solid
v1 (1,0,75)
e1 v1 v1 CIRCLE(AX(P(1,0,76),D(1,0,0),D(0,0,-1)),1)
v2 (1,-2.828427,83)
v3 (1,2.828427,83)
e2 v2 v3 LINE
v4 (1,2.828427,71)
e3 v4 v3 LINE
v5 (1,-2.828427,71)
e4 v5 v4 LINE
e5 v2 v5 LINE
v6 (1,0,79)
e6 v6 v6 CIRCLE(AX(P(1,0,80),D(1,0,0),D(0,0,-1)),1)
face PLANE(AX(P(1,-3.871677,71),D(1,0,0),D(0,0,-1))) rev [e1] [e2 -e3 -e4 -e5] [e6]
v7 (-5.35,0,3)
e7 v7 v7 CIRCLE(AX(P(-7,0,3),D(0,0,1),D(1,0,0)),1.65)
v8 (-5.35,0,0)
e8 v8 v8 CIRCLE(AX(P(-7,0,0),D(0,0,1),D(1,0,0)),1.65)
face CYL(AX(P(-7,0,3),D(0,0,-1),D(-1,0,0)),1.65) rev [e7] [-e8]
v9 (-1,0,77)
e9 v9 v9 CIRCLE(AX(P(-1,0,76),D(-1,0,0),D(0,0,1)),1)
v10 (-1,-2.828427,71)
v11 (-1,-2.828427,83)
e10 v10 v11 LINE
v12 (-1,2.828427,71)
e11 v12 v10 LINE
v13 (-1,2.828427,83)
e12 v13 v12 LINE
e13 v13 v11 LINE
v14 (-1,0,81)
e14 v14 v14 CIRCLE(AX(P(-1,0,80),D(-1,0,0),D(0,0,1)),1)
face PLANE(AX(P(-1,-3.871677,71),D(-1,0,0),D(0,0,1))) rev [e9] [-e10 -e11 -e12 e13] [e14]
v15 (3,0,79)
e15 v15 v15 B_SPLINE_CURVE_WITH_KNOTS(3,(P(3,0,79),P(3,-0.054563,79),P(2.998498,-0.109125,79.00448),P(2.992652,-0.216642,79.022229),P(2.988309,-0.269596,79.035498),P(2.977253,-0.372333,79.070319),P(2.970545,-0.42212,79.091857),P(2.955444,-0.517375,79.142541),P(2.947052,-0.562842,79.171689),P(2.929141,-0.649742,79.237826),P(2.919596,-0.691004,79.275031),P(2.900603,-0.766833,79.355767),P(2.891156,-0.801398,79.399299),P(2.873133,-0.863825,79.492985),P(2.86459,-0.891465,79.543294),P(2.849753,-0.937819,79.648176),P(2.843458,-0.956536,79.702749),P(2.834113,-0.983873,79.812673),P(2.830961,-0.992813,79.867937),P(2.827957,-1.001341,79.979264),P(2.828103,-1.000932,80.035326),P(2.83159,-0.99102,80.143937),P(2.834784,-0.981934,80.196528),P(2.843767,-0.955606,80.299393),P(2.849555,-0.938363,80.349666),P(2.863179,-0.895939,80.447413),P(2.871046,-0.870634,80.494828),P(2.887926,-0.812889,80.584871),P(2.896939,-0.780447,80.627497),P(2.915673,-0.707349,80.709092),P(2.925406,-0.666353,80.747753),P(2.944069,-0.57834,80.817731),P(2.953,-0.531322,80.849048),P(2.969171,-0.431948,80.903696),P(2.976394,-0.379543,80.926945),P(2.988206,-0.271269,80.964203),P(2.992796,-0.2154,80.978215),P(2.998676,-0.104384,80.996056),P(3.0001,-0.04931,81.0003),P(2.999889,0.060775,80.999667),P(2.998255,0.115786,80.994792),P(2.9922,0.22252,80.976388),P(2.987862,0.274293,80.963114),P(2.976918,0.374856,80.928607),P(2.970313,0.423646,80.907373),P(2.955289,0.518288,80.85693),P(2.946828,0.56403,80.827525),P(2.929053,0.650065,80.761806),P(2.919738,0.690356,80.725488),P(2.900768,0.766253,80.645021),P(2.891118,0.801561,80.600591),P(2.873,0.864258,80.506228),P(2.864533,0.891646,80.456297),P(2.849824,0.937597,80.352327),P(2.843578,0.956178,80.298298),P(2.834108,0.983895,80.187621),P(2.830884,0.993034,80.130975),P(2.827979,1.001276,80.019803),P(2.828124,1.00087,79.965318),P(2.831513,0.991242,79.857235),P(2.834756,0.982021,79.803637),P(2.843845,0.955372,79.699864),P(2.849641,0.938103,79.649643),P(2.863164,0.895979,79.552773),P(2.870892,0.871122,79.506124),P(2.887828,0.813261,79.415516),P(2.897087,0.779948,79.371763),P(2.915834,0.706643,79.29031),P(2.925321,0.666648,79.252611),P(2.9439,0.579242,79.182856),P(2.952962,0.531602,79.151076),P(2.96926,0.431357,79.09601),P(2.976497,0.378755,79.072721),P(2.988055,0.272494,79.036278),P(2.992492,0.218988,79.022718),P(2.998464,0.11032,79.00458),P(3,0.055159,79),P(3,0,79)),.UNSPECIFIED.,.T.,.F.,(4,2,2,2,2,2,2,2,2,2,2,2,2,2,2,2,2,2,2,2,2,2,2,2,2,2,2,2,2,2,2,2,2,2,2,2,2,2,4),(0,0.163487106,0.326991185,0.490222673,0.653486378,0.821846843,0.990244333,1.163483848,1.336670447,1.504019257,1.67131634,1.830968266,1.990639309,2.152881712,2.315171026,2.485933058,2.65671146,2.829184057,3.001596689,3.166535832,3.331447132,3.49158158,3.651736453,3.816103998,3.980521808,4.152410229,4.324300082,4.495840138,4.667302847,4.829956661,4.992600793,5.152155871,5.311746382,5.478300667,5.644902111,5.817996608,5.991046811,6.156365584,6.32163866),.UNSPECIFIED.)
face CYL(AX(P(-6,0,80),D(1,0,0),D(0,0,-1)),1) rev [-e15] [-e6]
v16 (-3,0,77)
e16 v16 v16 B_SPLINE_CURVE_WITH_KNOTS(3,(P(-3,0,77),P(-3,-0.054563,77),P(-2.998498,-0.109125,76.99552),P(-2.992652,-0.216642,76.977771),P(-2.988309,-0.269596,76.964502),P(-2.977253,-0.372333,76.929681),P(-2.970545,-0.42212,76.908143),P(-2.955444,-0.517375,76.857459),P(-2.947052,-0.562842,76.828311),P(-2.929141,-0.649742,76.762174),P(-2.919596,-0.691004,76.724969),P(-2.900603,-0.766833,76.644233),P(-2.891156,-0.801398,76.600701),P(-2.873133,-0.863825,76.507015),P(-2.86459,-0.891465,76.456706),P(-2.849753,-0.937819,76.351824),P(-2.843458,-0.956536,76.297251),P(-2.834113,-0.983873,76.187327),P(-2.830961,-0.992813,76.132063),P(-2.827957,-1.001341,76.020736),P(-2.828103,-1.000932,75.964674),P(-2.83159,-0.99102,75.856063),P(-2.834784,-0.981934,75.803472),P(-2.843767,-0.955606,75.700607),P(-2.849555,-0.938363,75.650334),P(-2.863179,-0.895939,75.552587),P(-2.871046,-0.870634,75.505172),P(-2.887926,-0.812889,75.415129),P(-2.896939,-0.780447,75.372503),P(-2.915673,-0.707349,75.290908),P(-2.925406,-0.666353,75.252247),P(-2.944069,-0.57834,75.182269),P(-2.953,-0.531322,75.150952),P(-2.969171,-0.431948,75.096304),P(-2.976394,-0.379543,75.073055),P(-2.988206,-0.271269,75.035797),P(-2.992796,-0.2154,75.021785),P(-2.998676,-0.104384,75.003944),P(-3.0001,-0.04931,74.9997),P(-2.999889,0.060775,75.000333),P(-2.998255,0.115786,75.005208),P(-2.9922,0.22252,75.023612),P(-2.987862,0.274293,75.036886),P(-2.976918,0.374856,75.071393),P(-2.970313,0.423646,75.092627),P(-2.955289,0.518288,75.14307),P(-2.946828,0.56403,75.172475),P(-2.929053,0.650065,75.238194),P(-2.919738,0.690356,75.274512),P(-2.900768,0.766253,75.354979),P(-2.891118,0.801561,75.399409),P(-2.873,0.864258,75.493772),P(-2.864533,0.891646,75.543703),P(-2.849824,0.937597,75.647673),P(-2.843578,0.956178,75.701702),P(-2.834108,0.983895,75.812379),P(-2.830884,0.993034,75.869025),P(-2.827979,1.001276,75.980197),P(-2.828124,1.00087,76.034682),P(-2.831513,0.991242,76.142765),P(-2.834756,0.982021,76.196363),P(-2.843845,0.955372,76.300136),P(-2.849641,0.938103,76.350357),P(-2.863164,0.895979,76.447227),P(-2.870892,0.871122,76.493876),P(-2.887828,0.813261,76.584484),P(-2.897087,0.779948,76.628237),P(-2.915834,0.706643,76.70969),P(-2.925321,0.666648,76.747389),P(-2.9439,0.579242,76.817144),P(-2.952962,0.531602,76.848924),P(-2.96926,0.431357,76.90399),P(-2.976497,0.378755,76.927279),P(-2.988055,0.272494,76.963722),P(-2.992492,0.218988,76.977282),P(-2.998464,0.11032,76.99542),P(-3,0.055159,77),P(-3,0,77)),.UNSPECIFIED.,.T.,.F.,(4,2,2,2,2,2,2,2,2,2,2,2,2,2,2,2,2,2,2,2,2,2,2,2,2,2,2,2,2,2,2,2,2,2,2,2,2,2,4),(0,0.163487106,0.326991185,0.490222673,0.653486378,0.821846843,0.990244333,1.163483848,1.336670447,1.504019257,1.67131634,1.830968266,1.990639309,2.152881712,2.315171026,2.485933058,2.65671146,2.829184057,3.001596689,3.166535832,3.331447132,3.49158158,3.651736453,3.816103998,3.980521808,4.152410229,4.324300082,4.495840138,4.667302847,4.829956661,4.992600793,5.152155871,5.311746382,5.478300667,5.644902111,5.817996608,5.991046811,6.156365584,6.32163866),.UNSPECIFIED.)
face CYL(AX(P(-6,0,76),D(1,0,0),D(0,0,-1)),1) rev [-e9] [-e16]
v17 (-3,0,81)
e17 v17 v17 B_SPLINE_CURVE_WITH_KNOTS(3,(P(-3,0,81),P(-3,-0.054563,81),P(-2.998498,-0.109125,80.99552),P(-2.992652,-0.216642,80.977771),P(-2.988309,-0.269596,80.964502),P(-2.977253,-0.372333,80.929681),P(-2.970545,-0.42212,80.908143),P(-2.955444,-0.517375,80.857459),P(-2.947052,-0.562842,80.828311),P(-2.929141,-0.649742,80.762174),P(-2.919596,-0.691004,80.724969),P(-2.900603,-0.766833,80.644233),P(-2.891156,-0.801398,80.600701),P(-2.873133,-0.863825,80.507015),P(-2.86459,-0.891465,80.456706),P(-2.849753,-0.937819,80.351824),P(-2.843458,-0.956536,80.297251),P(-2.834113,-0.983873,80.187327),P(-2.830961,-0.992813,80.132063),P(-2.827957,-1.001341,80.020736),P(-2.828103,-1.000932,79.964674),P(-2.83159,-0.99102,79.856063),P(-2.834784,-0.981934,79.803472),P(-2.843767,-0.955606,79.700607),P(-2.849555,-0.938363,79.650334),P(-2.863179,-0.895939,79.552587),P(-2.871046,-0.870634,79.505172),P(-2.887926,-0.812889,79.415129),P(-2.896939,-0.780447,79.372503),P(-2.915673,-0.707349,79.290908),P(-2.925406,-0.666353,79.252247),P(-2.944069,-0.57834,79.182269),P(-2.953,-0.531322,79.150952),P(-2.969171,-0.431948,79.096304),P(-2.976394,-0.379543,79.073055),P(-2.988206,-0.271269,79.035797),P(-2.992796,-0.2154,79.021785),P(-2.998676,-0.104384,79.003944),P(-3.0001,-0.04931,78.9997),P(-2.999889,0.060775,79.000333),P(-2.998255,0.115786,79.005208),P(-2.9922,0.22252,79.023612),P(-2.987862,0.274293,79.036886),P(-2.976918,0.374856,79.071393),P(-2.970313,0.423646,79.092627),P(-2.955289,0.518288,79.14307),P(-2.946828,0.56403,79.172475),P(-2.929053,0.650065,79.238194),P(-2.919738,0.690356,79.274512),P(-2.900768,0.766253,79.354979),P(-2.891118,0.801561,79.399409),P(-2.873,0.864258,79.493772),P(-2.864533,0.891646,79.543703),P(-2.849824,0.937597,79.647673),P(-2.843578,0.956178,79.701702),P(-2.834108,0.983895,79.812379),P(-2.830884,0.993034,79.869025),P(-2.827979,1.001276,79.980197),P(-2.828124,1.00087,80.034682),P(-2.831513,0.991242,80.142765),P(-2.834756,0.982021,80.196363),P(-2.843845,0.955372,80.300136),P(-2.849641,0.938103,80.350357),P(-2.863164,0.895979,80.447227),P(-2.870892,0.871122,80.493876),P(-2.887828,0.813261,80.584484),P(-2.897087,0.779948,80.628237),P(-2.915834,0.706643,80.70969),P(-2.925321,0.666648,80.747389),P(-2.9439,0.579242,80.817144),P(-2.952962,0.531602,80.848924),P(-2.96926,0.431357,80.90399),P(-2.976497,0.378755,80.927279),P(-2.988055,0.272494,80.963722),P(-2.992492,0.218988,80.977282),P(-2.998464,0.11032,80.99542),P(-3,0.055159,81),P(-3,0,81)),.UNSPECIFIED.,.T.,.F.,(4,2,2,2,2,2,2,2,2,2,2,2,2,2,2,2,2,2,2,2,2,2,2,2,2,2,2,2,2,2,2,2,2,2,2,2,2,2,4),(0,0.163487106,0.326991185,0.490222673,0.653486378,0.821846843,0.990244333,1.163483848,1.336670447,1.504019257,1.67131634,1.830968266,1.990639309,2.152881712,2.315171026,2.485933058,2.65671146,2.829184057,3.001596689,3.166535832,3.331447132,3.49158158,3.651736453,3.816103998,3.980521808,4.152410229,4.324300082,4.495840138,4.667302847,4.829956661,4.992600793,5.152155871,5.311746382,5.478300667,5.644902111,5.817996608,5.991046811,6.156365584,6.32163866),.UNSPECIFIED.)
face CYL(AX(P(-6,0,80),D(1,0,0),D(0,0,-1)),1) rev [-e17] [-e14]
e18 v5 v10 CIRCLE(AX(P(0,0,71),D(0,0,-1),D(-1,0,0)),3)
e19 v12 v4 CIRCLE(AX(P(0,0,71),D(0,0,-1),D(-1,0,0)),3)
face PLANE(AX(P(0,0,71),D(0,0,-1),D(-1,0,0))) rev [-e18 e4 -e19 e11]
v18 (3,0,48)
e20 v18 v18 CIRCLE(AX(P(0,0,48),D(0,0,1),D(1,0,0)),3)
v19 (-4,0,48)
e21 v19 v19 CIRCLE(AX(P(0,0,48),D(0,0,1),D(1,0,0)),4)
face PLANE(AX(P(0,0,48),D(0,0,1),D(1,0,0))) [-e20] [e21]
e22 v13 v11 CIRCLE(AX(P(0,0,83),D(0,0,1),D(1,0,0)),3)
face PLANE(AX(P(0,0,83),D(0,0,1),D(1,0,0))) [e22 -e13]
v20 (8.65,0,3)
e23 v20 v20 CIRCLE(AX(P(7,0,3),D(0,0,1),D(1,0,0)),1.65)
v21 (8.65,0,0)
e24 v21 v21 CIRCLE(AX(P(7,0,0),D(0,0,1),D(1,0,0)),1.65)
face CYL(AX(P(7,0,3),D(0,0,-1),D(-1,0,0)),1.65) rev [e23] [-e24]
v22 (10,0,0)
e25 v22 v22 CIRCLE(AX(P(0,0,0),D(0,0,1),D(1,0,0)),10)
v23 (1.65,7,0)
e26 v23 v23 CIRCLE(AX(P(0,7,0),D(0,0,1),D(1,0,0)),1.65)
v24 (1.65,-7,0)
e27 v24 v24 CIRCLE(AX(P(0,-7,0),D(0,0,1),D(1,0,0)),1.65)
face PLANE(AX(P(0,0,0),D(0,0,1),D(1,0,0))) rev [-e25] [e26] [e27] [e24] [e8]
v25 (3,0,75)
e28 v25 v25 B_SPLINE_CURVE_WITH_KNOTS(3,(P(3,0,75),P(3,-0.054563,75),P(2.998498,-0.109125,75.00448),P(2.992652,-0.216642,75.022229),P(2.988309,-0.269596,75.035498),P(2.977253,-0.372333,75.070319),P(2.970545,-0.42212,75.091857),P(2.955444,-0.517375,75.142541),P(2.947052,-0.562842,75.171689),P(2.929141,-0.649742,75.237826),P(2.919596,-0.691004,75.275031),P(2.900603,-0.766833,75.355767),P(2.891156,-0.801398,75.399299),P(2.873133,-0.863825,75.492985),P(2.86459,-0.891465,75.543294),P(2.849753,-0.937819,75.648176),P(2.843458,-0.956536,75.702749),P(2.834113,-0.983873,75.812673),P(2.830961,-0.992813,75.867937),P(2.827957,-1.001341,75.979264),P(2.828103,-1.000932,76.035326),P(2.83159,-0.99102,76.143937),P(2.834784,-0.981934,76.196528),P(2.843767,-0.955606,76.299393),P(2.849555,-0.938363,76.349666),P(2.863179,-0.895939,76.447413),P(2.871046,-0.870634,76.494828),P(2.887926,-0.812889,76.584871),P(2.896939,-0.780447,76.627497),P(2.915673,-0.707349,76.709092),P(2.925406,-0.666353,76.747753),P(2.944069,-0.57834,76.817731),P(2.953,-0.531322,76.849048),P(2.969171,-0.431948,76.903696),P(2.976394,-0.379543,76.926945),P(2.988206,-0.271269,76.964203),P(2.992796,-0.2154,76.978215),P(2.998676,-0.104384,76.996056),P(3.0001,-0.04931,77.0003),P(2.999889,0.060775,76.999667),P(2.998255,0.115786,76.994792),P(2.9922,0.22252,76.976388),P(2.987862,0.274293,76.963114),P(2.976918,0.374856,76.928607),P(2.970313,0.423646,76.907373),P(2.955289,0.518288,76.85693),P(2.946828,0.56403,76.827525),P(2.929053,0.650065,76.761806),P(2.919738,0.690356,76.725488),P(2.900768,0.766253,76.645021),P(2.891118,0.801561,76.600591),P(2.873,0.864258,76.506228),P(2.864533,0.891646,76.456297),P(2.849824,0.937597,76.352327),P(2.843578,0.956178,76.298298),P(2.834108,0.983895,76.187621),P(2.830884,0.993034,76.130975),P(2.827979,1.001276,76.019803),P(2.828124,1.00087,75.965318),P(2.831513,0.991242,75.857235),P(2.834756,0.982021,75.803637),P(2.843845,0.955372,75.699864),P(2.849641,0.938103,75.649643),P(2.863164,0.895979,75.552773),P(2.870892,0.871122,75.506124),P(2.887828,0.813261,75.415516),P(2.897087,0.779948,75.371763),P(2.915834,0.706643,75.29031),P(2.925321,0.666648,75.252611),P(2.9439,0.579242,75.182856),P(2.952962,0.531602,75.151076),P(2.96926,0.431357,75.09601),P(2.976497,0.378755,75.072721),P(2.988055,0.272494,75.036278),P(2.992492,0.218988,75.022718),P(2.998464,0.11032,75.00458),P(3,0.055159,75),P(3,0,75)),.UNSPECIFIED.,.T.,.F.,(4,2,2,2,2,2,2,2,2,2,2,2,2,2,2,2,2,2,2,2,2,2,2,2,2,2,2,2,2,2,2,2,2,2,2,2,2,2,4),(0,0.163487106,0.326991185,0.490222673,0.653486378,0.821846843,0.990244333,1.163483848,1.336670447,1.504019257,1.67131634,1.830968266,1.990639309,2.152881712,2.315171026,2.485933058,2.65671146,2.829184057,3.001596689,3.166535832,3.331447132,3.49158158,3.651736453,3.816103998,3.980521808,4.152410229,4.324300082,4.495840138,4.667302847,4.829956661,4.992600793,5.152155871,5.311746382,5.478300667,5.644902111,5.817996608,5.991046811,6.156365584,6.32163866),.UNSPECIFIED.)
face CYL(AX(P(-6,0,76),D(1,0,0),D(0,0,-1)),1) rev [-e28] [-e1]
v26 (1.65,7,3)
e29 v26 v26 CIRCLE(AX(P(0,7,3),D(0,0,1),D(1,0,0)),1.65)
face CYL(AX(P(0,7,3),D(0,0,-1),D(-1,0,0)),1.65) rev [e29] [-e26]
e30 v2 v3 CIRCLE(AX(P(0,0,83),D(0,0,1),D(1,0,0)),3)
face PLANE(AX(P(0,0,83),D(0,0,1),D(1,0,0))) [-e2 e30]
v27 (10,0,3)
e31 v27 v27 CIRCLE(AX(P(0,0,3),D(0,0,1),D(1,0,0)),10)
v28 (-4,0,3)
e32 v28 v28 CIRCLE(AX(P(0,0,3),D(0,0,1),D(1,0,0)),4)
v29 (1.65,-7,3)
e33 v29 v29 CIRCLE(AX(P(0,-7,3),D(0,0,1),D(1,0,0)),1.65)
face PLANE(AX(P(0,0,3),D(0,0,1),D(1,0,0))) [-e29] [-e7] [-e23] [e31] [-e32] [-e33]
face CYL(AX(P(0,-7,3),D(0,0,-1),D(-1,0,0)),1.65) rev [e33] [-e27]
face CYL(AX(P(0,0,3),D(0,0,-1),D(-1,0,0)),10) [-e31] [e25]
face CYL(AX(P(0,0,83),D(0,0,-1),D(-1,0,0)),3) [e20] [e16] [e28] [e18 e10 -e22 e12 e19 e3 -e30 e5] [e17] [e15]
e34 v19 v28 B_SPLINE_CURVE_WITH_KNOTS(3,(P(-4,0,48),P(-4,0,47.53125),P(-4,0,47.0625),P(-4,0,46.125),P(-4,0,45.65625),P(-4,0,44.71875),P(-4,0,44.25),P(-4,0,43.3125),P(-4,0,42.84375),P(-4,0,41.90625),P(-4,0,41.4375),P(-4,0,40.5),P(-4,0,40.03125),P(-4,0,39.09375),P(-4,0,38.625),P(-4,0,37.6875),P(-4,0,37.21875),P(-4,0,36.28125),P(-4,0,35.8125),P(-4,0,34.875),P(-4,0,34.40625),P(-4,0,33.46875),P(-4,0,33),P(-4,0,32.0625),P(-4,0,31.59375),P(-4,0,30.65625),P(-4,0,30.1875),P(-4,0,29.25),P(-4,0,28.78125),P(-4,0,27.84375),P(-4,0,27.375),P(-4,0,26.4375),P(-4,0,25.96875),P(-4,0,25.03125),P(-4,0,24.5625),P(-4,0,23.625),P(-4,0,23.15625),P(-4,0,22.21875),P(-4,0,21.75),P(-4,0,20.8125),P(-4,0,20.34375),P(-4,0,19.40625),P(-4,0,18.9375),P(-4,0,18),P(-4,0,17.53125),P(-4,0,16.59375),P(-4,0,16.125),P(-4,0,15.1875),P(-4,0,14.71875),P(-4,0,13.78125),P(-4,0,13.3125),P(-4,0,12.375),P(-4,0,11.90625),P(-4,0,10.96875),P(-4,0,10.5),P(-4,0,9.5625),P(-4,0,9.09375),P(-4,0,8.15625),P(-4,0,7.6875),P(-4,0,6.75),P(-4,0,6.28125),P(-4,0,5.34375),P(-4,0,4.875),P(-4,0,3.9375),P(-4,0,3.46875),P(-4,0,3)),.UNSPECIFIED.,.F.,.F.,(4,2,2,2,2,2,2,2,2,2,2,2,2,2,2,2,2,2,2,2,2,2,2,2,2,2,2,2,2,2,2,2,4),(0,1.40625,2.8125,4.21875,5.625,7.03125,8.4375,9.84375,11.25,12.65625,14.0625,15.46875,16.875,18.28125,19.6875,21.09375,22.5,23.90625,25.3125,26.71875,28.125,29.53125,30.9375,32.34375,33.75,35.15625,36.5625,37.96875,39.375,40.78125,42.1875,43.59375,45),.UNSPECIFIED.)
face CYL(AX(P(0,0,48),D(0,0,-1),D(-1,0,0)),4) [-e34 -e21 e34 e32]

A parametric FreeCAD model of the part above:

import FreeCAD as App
import Part
import Sketcher

V = App.Vector

doc = App.newDocument("Part")
params = doc.addObject("Spreadsheet::Sheet", "Params")
for row, (alias, value) in enumerate([
    ("sketch1_diameter", "20 mm"),
    ("sketch1_diameter2", "3.3 mm"),
    ("pad1_length", "3 mm"),
    ("sketch2_diameter", "6 mm"),
    ("pad2_length", "80 mm"),
    ("sketch3_width", "2 mm"),
    ("pocket1_length", "12 mm"),
    ("sketch4_diameter", "2 mm"),
    ("pocket2_length", "10 mm"),
    ("sketch5_diameter", "8 mm"),
    ("pad3_length", "45 mm"),
], start=1):
    params.set(f"A{row}", alias)
    params.set(f"B{row}", "=" + value)
    params.setAlias(f"B{row}", alias)

body = doc.addObject("PartDesign::Body", "Body")

# Sketch on XY plane
sketch1 = body.newObject("Sketcher::SketchObject", "Sketch")
sketch1.AttachmentSupport = (doc.getObject("XY_Plane"), [""])
sketch1.MapMode = "FlatFace"
sketch1.addGeometry([
    Part.Circle(V(0, 0, 0), V(0, 0, 1), 10),  # 0
    Part.Circle(V(0, -7, 0), V(0, 0, 1), 1.6),  # 1
    Part.Circle(V(-7, 0, 0), V(0, 0, 1), 1.6),  # 2
    Part.Circle(V(0, 7, 0), V(0, 0, 1), 1.6),  # 3
    Part.Circle(V(7, 0, 0), V(0, 0, 1), 1.6),  # 4
], False)
sketch1.addConstraint([
    Sketcher.Constraint("Coincident", 0, 3, -1, 1),
    Sketcher.Constraint("Equal", 1, 2),
    Sketcher.Constraint("Equal", 2, 3),
    Sketcher.Constraint("Equal", 3, 4),
    Sketcher.Constraint("Symmetric", 1, 3, 3, 3, -1, 1),
    Sketcher.Constraint("Symmetric", 2, 3, 4, 3, -1, 1),
    Sketcher.Constraint("PointOnObject", 1, 3, -2),
    Sketcher.Constraint("PointOnObject", 2, 3, -1),
    Sketcher.Constraint("Diameter", 0, 20.0),
    Sketcher.Constraint("Diameter", 1, 3.3),
    Sketcher.Constraint("DistanceY", 1, 3, -1, 1, 7.0),
    Sketcher.Constraint("DistanceX", 2, 3, -1, 1, 7.0),
])
sketch1.setExpression("Constraints[8]", "Params.sketch1_diameter")
sketch1.setExpression("Constraints[9]", "Params.sketch1_diameter2")
pad1 = body.newObject("PartDesign::Pad", "Pad")
pad1.Profile = sketch1
pad1.setExpression("Length", "Params.pad1_length")

# Sketch on XY plane
sketch2 = body.newObject("Sketcher::SketchObject", "Sketch001")
sketch2.AttachmentSupport = (doc.getObject("XY_Plane"), [""])
sketch2.MapMode = "FlatFace"
sketch2.AttachmentOffset = App.Placement(V(0, 0, 3), App.Rotation())
sketch2.addGeometry(Part.Circle(V(0, 0, 0), V(0, 0, 1), 3), False)
sketch2.addConstraint([
    Sketcher.Constraint("Coincident", 0, 3, -1, 1),
    Sketcher.Constraint("Diameter", 0, 6.0),
])
sketch2.setExpression("Constraints[1]", "Params.sketch2_diameter")
pad2 = body.newObject("PartDesign::Pad", "Pad001")
pad2.Profile = sketch2
pad2.setExpression("Length", "Params.pad2_length")

# Sketch on XY plane
sketch3 = body.newObject("Sketcher::SketchObject", "Sketch002")
sketch3.AttachmentSupport = (doc.getObject("XY_Plane"), [""])
sketch3.MapMode = "FlatFace"
sketch3.AttachmentOffset = App.Placement(V(0, 0, 83), App.Rotation())
sketch3.addGeometry([
    Part.LineSegment(V(-1, 3.9, 0), V(-1, -3.9, 0)),
    Part.LineSegment(V(-1, -3.9, 0), V(1, -3.9, 0)),
    Part.LineSegment(V(1, -3.9, 0), V(1, 3.9, 0)),
    Part.LineSegment(V(1, 3.9, 0), V(-1, 3.9, 0)),
], False)
sketch3.addConstraint([
    Sketcher.Constraint("Coincident", 0, 2, 1, 1),
    Sketcher.Constraint("Coincident", 1, 2, 2, 1),
    Sketcher.Constraint("Coincident", 2, 2, 3, 1),
    Sketcher.Constraint("Coincident", 3, 2, 0, 1),
    Sketcher.Constraint("Vertical", 0),
    Sketcher.Constraint("Horizontal", 1),
    Sketcher.Constraint("Vertical", 2),
    Sketcher.Constraint("Horizontal", 3),
    Sketcher.Constraint("Symmetric", 0, 2, 2, 2, -1, 1),
    Sketcher.Constraint("DistanceX", 1, 1, 1, 2, 2.0),
    Sketcher.Constraint("DistanceY", 0, 2, 0, 1, 7.743355),
])
sketch3.setExpression("Constraints[9]", "Params.sketch3_width")
pocket1 = body.newObject("PartDesign::Pocket", "Pocket")
pocket1.Profile = sketch3
pocket1.setExpression("Length", "Params.pocket1_length")

# Sketch on YZ plane
sketch4 = body.newObject("Sketcher::SketchObject", "Sketch003")
sketch4.AttachmentSupport = (doc.getObject("YZ_Plane"), [""])
sketch4.MapMode = "FlatFace"
sketch4.AttachmentOffset = App.Placement(V(0, 0, -1), App.Rotation())
sketch4.addGeometry([
    Part.Circle(V(0, 80, 0), V(0, 0, 1), 1),
    Part.Circle(V(0, 76, 0), V(0, 0, 1), 1),
], False)
sketch4.addConstraint([
    Sketcher.Constraint("Equal", 0, 1),
    Sketcher.Constraint("PointOnObject", 0, 3, -2),
    Sketcher.Constraint("PointOnObject", 1, 3, -2),
    Sketcher.Constraint("Diameter", 0, 2.0),
    Sketcher.Constraint("DistanceY", -1, 1, 0, 3, 80.0),
    Sketcher.Constraint("DistanceY", -1, 1, 1, 3, 76.0),
])
sketch4.setExpression("Constraints[3]", "Params.sketch4_diameter")
pocket2 = body.newObject("PartDesign::Pocket", "Pocket001")
pocket2.Profile = sketch4
pocket2.setExpression("Length", "Params.pocket2_length")
pocket2.Midplane = True

# Sketch on XY plane
sketch5 = body.newObject("Sketcher::SketchObject", "Sketch004")
sketch5.AttachmentSupport = (doc.getObject("XY_Plane"), [""])
sketch5.MapMode = "FlatFace"
sketch5.AttachmentOffset = App.Placement(V(0, 0, 3), App.Rotation())
sketch5.addGeometry(Part.Circle(V(0, 0, 0), V(0, 0, 1), 4), False)
sketch5.addConstraint([
    Sketcher.Constraint("Coincident", 0, 3, -1, 1),
    Sketcher.Constraint("Diameter", 0, 8.0),
])
sketch5.setExpression("Constraints[1]", "Params.sketch5_diameter")
pad3 = body.newObject("PartDesign::Pad", "Pad002")
pad3.Profile = sketch5
pad3.setExpression("Length", "Params.pad3_length")

doc.recompute()
